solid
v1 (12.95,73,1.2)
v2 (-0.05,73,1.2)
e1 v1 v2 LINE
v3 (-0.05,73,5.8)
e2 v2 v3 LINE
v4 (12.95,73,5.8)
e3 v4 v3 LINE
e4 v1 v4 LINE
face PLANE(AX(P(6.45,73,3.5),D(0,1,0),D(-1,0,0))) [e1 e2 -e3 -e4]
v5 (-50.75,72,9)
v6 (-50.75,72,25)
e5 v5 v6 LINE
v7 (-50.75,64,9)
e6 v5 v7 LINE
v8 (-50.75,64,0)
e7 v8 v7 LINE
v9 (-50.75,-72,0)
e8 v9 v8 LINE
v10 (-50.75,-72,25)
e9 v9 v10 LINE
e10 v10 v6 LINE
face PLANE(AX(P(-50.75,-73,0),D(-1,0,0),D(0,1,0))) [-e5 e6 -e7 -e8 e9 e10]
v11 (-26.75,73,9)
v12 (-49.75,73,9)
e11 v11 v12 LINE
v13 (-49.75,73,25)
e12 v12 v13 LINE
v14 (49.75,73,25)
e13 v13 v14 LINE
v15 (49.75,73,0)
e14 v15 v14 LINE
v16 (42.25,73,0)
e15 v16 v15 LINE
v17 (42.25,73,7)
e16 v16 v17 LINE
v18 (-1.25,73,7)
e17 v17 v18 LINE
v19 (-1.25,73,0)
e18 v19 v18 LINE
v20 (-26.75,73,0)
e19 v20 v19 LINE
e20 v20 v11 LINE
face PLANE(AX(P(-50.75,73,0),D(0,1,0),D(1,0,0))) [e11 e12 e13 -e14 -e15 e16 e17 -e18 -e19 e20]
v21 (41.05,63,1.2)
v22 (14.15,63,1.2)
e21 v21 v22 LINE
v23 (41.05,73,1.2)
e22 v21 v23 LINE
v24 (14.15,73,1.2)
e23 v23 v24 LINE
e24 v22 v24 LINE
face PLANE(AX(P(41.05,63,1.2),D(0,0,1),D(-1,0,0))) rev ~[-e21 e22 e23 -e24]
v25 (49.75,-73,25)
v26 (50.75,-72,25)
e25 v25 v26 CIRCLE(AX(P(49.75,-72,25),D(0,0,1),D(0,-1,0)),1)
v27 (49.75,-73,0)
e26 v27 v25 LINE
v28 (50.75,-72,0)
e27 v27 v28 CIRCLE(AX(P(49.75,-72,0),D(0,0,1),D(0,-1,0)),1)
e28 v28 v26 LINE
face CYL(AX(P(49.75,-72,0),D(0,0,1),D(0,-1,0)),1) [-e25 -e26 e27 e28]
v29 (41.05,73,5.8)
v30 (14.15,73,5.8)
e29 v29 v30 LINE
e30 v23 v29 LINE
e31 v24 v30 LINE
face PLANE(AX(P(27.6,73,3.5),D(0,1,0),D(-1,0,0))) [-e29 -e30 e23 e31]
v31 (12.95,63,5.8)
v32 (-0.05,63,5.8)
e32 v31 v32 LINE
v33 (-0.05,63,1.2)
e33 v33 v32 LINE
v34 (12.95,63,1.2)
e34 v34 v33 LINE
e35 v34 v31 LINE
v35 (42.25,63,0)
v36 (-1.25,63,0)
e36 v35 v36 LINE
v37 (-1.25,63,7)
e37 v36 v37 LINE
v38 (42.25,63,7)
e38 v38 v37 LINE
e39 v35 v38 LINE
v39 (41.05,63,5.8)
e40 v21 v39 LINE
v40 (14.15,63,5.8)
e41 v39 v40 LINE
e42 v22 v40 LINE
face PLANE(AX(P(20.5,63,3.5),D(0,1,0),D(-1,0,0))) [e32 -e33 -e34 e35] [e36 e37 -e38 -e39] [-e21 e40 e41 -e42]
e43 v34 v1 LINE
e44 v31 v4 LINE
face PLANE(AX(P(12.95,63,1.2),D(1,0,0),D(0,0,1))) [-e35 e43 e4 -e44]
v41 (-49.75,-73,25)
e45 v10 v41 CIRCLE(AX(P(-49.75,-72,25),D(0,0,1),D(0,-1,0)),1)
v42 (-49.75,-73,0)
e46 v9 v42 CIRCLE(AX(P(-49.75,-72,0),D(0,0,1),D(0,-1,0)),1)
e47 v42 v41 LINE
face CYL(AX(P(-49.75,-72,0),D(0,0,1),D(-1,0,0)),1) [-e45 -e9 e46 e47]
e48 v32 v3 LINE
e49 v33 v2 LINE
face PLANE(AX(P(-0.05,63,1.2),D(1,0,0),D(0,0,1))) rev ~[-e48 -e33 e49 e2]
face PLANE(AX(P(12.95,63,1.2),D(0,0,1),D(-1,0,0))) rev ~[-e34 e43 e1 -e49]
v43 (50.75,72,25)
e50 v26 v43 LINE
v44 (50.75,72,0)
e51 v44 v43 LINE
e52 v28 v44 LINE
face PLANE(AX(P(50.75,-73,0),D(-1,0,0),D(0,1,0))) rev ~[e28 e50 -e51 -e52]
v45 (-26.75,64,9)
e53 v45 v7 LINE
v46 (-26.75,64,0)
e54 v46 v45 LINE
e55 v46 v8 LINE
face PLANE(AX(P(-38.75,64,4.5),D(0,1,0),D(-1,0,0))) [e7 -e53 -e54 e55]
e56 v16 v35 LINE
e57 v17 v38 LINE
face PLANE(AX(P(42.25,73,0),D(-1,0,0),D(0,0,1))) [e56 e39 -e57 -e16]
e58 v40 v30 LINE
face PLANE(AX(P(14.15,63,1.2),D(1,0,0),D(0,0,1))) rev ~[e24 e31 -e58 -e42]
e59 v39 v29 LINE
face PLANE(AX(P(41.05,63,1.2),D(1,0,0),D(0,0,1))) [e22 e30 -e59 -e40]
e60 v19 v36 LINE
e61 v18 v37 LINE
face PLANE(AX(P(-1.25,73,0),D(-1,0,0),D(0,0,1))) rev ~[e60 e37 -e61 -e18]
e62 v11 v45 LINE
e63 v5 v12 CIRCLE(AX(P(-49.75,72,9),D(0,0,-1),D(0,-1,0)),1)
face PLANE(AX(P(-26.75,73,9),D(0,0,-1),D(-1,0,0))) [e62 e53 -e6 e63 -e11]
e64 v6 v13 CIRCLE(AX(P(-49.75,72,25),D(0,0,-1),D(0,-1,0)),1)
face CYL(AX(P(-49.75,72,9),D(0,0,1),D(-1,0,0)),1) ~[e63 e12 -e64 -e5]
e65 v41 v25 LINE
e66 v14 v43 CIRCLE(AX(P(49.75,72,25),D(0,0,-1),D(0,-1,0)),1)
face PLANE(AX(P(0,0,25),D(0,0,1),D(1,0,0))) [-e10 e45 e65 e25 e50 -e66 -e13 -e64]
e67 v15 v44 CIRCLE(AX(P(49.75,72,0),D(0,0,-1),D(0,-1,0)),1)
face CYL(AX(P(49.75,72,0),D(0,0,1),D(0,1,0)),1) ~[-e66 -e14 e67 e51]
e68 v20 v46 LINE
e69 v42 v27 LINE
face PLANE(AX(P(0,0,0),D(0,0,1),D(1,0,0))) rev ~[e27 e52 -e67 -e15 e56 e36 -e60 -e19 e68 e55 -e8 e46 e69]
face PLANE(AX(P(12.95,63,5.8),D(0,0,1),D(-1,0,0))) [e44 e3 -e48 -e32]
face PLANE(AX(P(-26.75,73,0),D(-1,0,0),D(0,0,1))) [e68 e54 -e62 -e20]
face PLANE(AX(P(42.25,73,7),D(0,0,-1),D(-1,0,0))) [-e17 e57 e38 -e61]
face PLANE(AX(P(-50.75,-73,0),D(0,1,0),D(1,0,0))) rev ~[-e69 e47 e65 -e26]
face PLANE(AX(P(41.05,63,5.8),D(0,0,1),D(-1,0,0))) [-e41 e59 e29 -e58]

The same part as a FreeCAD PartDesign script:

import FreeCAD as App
import Part
import Sketcher

V = App.Vector
Q = App.Units.Quantity


def edges_at(feature, points):
    """Names of the edges that pass closest to the given points."""
    edges = feature.Shape.Edges
    near = lambda p: min(range(len(edges)), key=lambda i: edges[i].distToShape(Part.Vertex(*p))[0])
    return sorted({f"Edge{near(p) + 1}" for p in points})


def add_polygon(sketch, points):
    """Adds a closed chain of lines whose ends are joined by coincident constraints."""
    first, n = sketch.GeometryCount, len(points)
    for a, b in zip(points, points[1:] + points[:1]):
        sketch.addGeometry(Part.LineSegment(App.Vector(*a, 0), App.Vector(*b, 0)), False)
    for i in range(n):
        sketch.addConstraint(Sketcher.Constraint("Coincident", first + i, 2, first + (i + 1) % n, 1))

doc = App.newDocument("Part")
body = doc.addObject("PartDesign::Body", "Body")

# Sketch on XY plane
sketch1 = body.newObject("Sketcher::SketchObject", "Sketch")
sketch1.AttachmentSupport = (doc.getObject("XY_Plane"), [""])
sketch1.MapMode = "FlatFace"
add_polygon(sketch1, [(-51, 73), (-51, -73), (51, -73), (51, 73)])  # lines 0-3
sketch1.addConstraint([
    Sketcher.Constraint("Vertical", 0),
    Sketcher.Constraint("Horizontal", 1),
    Sketcher.Constraint("Vertical", 2),
    Sketcher.Constraint("Horizontal", 3),
    Sketcher.Constraint("Symmetric", 0, 2, 2, 2, -1, 1),
    Sketcher.Constraint("DistanceY", 0, 2, 0, 1, Q("146 mm")),
    Sketcher.Constraint("DistanceX", 1, 1, 1, 2, Q("101.5 mm")),
])
pad1 = body.newObject("PartDesign::Pad", "Pad")
pad1.Profile = sketch1
pad1.Length = 25

# Sketch on XZ plane
sketch2 = body.newObject("Sketcher::SketchObject", "Sketch001")
sketch2.AttachmentSupport = (doc.getObject("XZ_Plane"), [""])
sketch2.MapMode = "FlatFace"
sketch2.AttachmentOffset = App.Placement(V(0, 0, -73), App.Rotation())
add_polygon(sketch2, [(-27, 9), (-27, 0), (-51, 0), (-51, 9)])  # lines 0-3
sketch2.addConstraint([
    Sketcher.Constraint("Vertical", 0),
    Sketcher.Constraint("Horizontal", 1),
    Sketcher.Constraint("Vertical", 2),
    Sketcher.Constraint("Horizontal", 3),
    Sketcher.Constraint("PointOnObject", 0, 2, -1),
    Sketcher.Constraint("DistanceX", 1, 2, 1, 1, Q("24 mm")),
    Sketcher.Constraint("DistanceY", 0, 2, 0, 1, Q("9 mm")),
    Sketcher.Constraint("DistanceX", 0, 2, -1, 1, Q("26.75 mm")),
])
pocket1 = body.newObject("PartDesign::Pocket", "Pocket")
pocket1.Profile = sketch2
pocket1.Length = 9
pocket1.Reversed = True
doc.recompute()

fillet = body.newObject("PartDesign::Fillet", "Fillet")
fillet.Base = (pocket1, edges_at(pocket1, [
    (50.75, 73, 12.5),
    (-50.75, 73, 17),
    (-50.75, -73, 12.5),
    (50.75, -73, 12.5),
]))
fillet.Radius = 1

# Sketch on XZ plane
sketch3 = body.newObject("Sketcher::SketchObject", "Sketch002")
sketch3.AttachmentSupport = (doc.getObject("XZ_Plane"), [""])
sketch3.MapMode = "FlatFace"
sketch3.AttachmentOffset = App.Placement(V(0, 0, -73), App.Rotation())
add_polygon(sketch3, [(42, 7), (42, 0), (-1, 0), (-1, 7)])  # lines 0-3
sketch3.addConstraint([
    Sketcher.Constraint("Vertical", 0),
    Sketcher.Constraint("Horizontal", 1),
    Sketcher.Constraint("Vertical", 2),
    Sketcher.Constraint("Horizontal", 3),
    Sketcher.Constraint("PointOnObject", 0, 2, -1),
    Sketcher.Constraint("DistanceY", 0, 2, 0, 1, Q("7 mm")),
    Sketcher.Constraint("DistanceX", 1, 2, 1, 1, Q("43.5 mm")),
    Sketcher.Constraint("DistanceX", -1, 1, 0, 2, Q("42.25 mm")),
])
pocket2 = body.newObject("PartDesign::Pocket", "Pocket001")
pocket2.Profile = sketch3
pocket2.Length = 10
pocket2.Reversed = True

# Sketch on XZ plane
sketch4 = body.newObject("Sketcher::SketchObject", "Sketch003")
sketch4.AttachmentSupport = (doc.getObject("XZ_Plane"), [""])
sketch4.MapMode = "FlatFace"
sketch4.AttachmentOffset = App.Placement(V(0, 0, -63), App.Rotation())
add_polygon(sketch4, [(41, 5.8), (41, 1.2), (14.2, 1.2), (14.2, 5.8)])  # lines 0-3
add_polygon(sketch4, [(12.9, 5.8), (12.9, 1.2), (-0.1, 1.2), (-0.1, 5.8)])  # lines 4-7
sketch4.addConstraint([
    Sketcher.Constraint("Vertical", 0),
    Sketcher.Constraint("Horizontal", 1),
    Sketcher.Constraint("Vertical", 2),
    Sketcher.Constraint("Horizontal", 3),
    Sketcher.Constraint("Vertical", 4),
    Sketcher.Constraint("Horizontal", 5),
    Sketcher.Constraint("Vertical", 6),
    Sketcher.Constraint("Horizontal", 7),
    Sketcher.Constraint("Horizontal", 1, 2, 4, 2),
    Sketcher.Constraint("Horizontal", 3, 2, 6, 2),
    Sketcher.Constraint("DistanceX", 5, 2, 5, 1, Q("13 mm")),
    Sketcher.Constraint("DistanceX", 1, 2, 1, 1, Q("26.9 mm")),
    Sketcher.Constraint("DistanceY", 0, 2, 0, 1, Q("4.6 mm")),
    Sketcher.Constraint("DistanceY", -1, 1, 0, 2, Q("1.2 mm")),
    Sketcher.Constraint("DistanceX", 4, 2, 1, 2, Q("1.2 mm")),
    Sketcher.Constraint("DistanceX", -1, 1, 0, 2, Q("41.05 mm")),
])
pad2 = body.newObject("PartDesign::Pad", "Pad001")
pad2.Profile = sketch4
pad2.Length = 10
pad2.Reversed = True

doc.recompute()
